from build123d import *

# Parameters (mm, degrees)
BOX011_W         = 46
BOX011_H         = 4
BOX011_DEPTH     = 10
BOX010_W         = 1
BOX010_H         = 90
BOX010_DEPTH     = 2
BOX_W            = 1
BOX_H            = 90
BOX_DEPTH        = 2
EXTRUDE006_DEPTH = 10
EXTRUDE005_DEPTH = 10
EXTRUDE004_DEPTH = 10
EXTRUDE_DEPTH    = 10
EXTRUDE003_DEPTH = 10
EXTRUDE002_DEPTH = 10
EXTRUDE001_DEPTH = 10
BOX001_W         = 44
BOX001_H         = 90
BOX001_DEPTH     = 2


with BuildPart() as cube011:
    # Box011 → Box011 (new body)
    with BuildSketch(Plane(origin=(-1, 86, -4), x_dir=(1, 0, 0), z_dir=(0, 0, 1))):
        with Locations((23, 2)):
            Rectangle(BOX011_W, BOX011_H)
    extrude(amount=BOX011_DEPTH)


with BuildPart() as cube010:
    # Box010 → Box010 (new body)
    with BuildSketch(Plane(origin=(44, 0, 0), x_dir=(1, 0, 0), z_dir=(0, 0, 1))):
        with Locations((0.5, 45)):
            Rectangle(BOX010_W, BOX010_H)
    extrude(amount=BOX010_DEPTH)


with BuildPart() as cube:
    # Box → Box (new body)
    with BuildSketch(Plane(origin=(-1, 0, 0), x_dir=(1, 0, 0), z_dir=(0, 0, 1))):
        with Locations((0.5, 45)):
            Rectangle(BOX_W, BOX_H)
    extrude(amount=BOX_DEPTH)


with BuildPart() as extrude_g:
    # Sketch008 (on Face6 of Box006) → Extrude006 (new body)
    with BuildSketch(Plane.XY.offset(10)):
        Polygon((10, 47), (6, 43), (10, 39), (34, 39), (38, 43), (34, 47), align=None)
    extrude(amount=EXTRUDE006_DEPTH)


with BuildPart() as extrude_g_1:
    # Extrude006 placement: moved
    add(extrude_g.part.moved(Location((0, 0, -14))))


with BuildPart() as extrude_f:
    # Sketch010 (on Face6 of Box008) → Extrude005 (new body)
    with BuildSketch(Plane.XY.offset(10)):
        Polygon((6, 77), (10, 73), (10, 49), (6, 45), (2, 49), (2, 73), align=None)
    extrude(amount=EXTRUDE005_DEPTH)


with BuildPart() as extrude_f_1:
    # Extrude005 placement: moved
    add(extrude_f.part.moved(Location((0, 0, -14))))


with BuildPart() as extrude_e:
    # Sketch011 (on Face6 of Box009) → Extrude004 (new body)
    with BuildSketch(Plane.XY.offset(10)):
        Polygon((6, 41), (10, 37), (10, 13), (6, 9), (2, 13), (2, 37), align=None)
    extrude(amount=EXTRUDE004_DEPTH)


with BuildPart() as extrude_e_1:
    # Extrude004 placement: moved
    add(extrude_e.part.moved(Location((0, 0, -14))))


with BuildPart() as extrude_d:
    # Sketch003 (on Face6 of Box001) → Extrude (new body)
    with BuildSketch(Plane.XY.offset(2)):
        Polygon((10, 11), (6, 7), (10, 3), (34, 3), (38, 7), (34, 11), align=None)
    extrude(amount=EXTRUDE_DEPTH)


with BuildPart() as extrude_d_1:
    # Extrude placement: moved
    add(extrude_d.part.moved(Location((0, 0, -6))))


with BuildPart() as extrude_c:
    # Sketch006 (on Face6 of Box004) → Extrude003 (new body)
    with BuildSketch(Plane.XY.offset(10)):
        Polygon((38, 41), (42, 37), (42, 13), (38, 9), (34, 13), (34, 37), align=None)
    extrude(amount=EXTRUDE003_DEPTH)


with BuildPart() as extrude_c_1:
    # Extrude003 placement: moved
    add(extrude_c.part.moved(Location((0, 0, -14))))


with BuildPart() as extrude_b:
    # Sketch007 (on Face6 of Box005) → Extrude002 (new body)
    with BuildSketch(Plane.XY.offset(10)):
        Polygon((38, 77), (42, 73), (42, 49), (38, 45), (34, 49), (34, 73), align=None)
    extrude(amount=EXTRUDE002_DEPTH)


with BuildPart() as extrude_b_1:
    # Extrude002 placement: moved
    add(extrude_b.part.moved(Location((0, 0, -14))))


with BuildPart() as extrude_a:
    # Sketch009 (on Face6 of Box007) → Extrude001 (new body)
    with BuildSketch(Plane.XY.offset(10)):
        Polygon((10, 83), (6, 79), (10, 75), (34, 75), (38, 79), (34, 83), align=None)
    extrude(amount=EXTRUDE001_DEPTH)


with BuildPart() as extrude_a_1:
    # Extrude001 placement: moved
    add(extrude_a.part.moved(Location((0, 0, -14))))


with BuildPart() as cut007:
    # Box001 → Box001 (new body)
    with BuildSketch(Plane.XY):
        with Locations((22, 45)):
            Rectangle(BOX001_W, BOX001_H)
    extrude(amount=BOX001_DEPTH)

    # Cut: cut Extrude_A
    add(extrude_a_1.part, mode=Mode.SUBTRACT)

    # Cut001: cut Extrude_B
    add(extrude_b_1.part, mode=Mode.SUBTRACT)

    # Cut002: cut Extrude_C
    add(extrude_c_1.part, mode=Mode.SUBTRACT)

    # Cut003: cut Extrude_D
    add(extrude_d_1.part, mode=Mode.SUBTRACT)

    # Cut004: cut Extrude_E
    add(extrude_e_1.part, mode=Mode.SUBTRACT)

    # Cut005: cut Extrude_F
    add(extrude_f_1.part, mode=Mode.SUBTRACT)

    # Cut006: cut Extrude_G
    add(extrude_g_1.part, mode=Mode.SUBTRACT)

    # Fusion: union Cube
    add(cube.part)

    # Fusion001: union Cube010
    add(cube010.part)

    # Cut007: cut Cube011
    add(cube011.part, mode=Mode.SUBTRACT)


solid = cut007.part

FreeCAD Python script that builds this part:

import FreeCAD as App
import Part
import Sketcher
from FreeCAD import Vector
Q = App.Units.Quantity


def add_polygon(sketch, points):
    """Adds a closed chain of lines whose ends are joined by coincident constraints."""
    first, n = sketch.GeometryCount, len(points)
    for a, b in zip(points, points[1:] + points[:1]):
        sketch.addGeometry(Part.LineSegment(App.Vector(*a, 0), App.Vector(*b, 0)), False)
    for i in range(n):
        sketch.addConstraint(Sketcher.Constraint("Coincident", first + i, 2, first + (i + 1) % n, 1))

doc = App.newDocument("Part")
body = doc.addObject("PartDesign::Body", "Body")

# Sketch on XY plane
sketch1 = body.newObject("Sketcher::SketchObject", "Sketch")
sketch1.AttachmentSupport = (doc.getObject("XY_Plane"), [""])
sketch1.MapMode = "FlatFace"
sketch1.AttachmentOffset = App.Placement(Vector(0, 0, -4), App.Rotation())
add_polygon(sketch1, [(-1, 90), (-1, 86), (45, 86), (45, 90)])  # lines 0-3
sketch1.addConstraint([
    Sketcher.Constraint("Vertical", 0),
    Sketcher.Constraint("Horizontal", 1),
    Sketcher.Constraint("Vertical", 2),
    Sketcher.Constraint("Horizontal", 3),
    Sketcher.Constraint("DistanceX", 1, 1, 1, 2, Q("46 mm")),
    Sketcher.Constraint("DistanceY", 0, 2, 0, 1, Q("4 mm")),
    Sketcher.Constraint("DistanceX", 0, 2, -1, 1, Q("1 mm")),
    Sketcher.Constraint("DistanceY", -1, 1, 0, 2, Q("86 mm")),
])
pad1 = body.newObject("PartDesign::Pad", "Pad")
pad1.Profile = sketch1
pad1.Length = 10
body2 = doc.addObject("PartDesign::Body", "Body001")

# Sketch on XY plane
sketch2 = body2.newObject("Sketcher::SketchObject", "Sketch001")
sketch2.AttachmentSupport = (doc.getObject("XY_Plane001"), [""])
sketch2.MapMode = "FlatFace"
add_polygon(sketch2, [(44, 90), (44, 0), (45, 0), (45, 90)])  # lines 0-3
sketch2.addConstraint([
    Sketcher.Constraint("Vertical", 0),
    Sketcher.Constraint("Horizontal", 1),
    Sketcher.Constraint("Vertical", 2),
    Sketcher.Constraint("Horizontal", 3),
    Sketcher.Constraint("PointOnObject", 0, 2, -1),
    Sketcher.Constraint("DistanceX", 1, 1, 1, 2, Q("1 mm")),
    Sketcher.Constraint("DistanceY", 0, 2, 0, 1, Q("90 mm")),
    Sketcher.Constraint("DistanceX", -1, 1, 0, 2, Q("44 mm")),
])
pad2 = body2.newObject("PartDesign::Pad", "Pad001")
pad2.Profile = sketch2
pad2.Length = 2
body3 = doc.addObject("PartDesign::Body", "Body002")

# Sketch on XY plane
sketch3 = body3.newObject("Sketcher::SketchObject", "Sketch002")
sketch3.AttachmentSupport = (doc.getObject("XY_Plane002"), [""])
sketch3.MapMode = "FlatFace"
add_polygon(sketch3, [(-1, 90), (-1, 0), (0, 0), (0, 90)])  # lines 0-3
sketch3.addConstraint([
    Sketcher.Constraint("Vertical", 0),
    Sketcher.Constraint("Horizontal", 1),
    Sketcher.Constraint("Vertical", 2),
    Sketcher.Constraint("Horizontal", 3),
    Sketcher.Constraint("Coincident", 1, 2, -1, 1),
    Sketcher.Constraint("DistanceX", 1, 1, 1, 2, Q("1 mm")),
    Sketcher.Constraint("DistanceY", 0, 2, 0, 1, Q("90 mm")),
])
pad3 = body3.newObject("PartDesign::Pad", "Pad002")
pad3.Profile = sketch3
pad3.Length = 2
body4 = doc.addObject("PartDesign::Body", "Body003")

# Sketch on XY plane
sketch4 = body4.newObject("Sketcher::SketchObject", "Sketch003")
sketch4.AttachmentSupport = (doc.getObject("XY_Plane003"), [""])
sketch4.MapMode = "FlatFace"
sketch4.AttachmentOffset = App.Placement(Vector(0, 0, 10), App.Rotation())
add_polygon(sketch4, [(10, 47), (6, 43), (10, 39), (34, 39), (38, 43), (34, 47)])  # lines 0-5
sketch4.addConstraint([
    Sketcher.Constraint("Horizontal", 2),
    Sketcher.Constraint("Horizontal", 5),
    Sketcher.Constraint("Perpendicular", 0, 1),
    Sketcher.Constraint("Perpendicular", 1, 3),
    Sketcher.Constraint("Perpendicular", 3, 4),
    Sketcher.Constraint("Horizontal", 0, 2, 3, 2),
    Sketcher.Constraint("Vertical", 2, 2, 4, 2),
    Sketcher.Constraint("Vertical", 1, 2, 5, 2),
    Sketcher.Constraint("DistanceX", 2, 1, 2, 2, Q("24 mm")),
    Sketcher.Constraint("DistanceX", -1, 1, 0, 2, Q("6 mm")),
    Sketcher.Constraint("DistanceY", -1, 1, 0, 2, Q("43 mm")),
    Sketcher.Constraint("DistanceX", -1, 1, 1, 2, Q("10 mm")),
])
pad4 = body4.newObject("PartDesign::Pad", "Pad003")
pad4.Profile = sketch4
pad4.Length = 10
body5 = doc.addObject("PartDesign::Body", "Body004")
doc.recompute()

body4.Placement = App.Placement(Vector(0, 0, -14), App.Rotation(Vector(0, 0, 1), 0))
boolean = body5.newObject("PartDesign::Boolean", "Boolean")
boolean.Type = "Fuse"
boolean.addObjects([body4])
body6 = doc.addObject("PartDesign::Body", "Body005")

# Sketch on XY plane
sketch5 = body6.newObject("Sketcher::SketchObject", "Sketch004")
sketch5.AttachmentSupport = (doc.getObject("XY_Plane005"), [""])
sketch5.MapMode = "FlatFace"
sketch5.AttachmentOffset = App.Placement(Vector(0, 0, 10), App.Rotation())
add_polygon(sketch5, [(10, 73), (6, 77), (2, 73), (2, 49), (6, 45), (10, 49)])  # lines 0-5
sketch5.addConstraint([
    Sketcher.Constraint("Vertical", 2),
    Sketcher.Constraint("Vertical", 5),
    Sketcher.Constraint("Perpendicular", 0, 1),
    Sketcher.Constraint("Perpendicular", 1, 3),
    Sketcher.Constraint("Perpendicular", 3, 4),
    Sketcher.Constraint("Horizontal", 2, 2, 4, 2),
    Sketcher.Constraint("Horizontal", 1, 2, 5, 2),
    Sketcher.Constraint("Vertical", 0, 2, 3, 2),
    Sketcher.Constraint("DistanceY", 2, 2, 2, 1, Q("24 mm")),
    Sketcher.Constraint("DistanceX", -1, 1, 0, 2, Q("6 mm")),
    Sketcher.Constraint("DistanceY", -1, 1, 0, 2, Q("77 mm")),
    Sketcher.Constraint("DistanceX", -1, 1, 1, 2, Q("2 mm")),
])
pad5 = body6.newObject("PartDesign::Pad", "Pad004")
pad5.Profile = sketch5
pad5.Length = 10
body7 = doc.addObject("PartDesign::Body", "Body006")
doc.recompute()

body6.Placement = App.Placement(Vector(0, 0, -14), App.Rotation(Vector(0, 0, 1), 0))
boolean2 = body7.newObject("PartDesign::Boolean", "Boolean001")
boolean2.Type = "Fuse"
boolean2.addObjects([body6])
body8 = doc.addObject("PartDesign::Body", "Body007")

# Sketch on XY plane
sketch6 = body8.newObject("Sketcher::SketchObject", "Sketch005")
sketch6.AttachmentSupport = (doc.getObject("XY_Plane007"), [""])
sketch6.MapMode = "FlatFace"
sketch6.AttachmentOffset = App.Placement(Vector(0, 0, 10), App.Rotation())
add_polygon(sketch6, [(10, 37), (6, 41), (2, 37), (2, 13), (6, 9), (10, 13)])  # lines 0-5
sketch6.addConstraint([
    Sketcher.Constraint("Vertical", 2),
    Sketcher.Constraint("Vertical", 5),
    Sketcher.Constraint("Perpendicular", 0, 1),
    Sketcher.Constraint("Perpendicular", 1, 3),
    Sketcher.Constraint("Perpendicular", 3, 4),
    Sketcher.Constraint("Horizontal", 2, 2, 4, 2),
    Sketcher.Constraint("Horizontal", 1, 2, 5, 2),
    Sketcher.Constraint("Vertical", 0, 2, 3, 2),
    Sketcher.Constraint("DistanceY", 2, 2, 2, 1, Q("24 mm")),
    Sketcher.Constraint("DistanceX", -1, 1, 0, 2, Q("6 mm")),
    Sketcher.Constraint("DistanceY", -1, 1, 0, 2, Q("41 mm")),
    Sketcher.Constraint("DistanceX", -1, 1, 1, 2, Q("2 mm")),
])
pad6 = body8.newObject("PartDesign::Pad", "Pad005")
pad6.Profile = sketch6
pad6.Length = 10
body9 = doc.addObject("PartDesign::Body", "Body008")
doc.recompute()

body8.Placement = App.Placement(Vector(0, 0, -14), App.Rotation(Vector(0, 0, 1), 0))
boolean3 = body9.newObject("PartDesign::Boolean", "Boolean002")
boolean3.Type = "Fuse"
boolean3.addObjects([body8])
body10 = doc.addObject("PartDesign::Body", "Body009")

# Sketch on XY plane
sketch7 = body10.newObject("Sketcher::SketchObject", "Sketch006")
sketch7.AttachmentSupport = (doc.getObject("XY_Plane009"), [""])
sketch7.MapMode = "FlatFace"
sketch7.AttachmentOffset = App.Placement(Vector(0, 0, 2), App.Rotation())
add_polygon(sketch7, [(10, 11), (6, 7), (10, 3), (34, 3), (38, 7), (34, 11)])  # lines 0-5
sketch7.addConstraint([
    Sketcher.Constraint("Horizontal", 2),
    Sketcher.Constraint("Horizontal", 5),
    Sketcher.Constraint("Perpendicular", 0, 1),
    Sketcher.Constraint("Perpendicular", 1, 3),
    Sketcher.Constraint("Perpendicular", 3, 4),
    Sketcher.Constraint("Horizontal", 0, 2, 3, 2),
    Sketcher.Constraint("Vertical", 2, 2, 4, 2),
    Sketcher.Constraint("Vertical", 1, 2, 5, 2),
    Sketcher.Constraint("DistanceX", 2, 1, 2, 2, Q("24 mm")),
    Sketcher.Constraint("DistanceX", -1, 1, 0, 2, Q("6 mm")),
    Sketcher.Constraint("DistanceY", -1, 1, 0, 2, Q("7 mm")),
    Sketcher.Constraint("DistanceX", -1, 1, 1, 2, Q("10 mm")),
])
pad7 = body10.newObject("PartDesign::Pad", "Pad006")
pad7.Profile = sketch7
pad7.Length = 10
body11 = doc.addObject("PartDesign::Body", "Body010")
doc.recompute()

body10.Placement = App.Placement(Vector(0, 0, -6), App.Rotation(Vector(0, 0, 1), 0))
boolean4 = body11.newObject("PartDesign::Boolean", "Boolean003")
boolean4.Type = "Fuse"
boolean4.addObjects([body10])
body12 = doc.addObject("PartDesign::Body", "Body011")

# Sketch on XY plane
sketch8 = body12.newObject("Sketcher::SketchObject", "Sketch007")
sketch8.AttachmentSupport = (doc.getObject("XY_Plane011"), [""])
sketch8.MapMode = "FlatFace"
sketch8.AttachmentOffset = App.Placement(Vector(0, 0, 10), App.Rotation())
add_polygon(sketch8, [(42, 37), (38, 41), (34, 37), (34, 13), (38, 9), (42, 13)])  # lines 0-5
sketch8.addConstraint([
    Sketcher.Constraint("Vertical", 2),
    Sketcher.Constraint("Vertical", 5),
    Sketcher.Constraint("Perpendicular", 0, 1),
    Sketcher.Constraint("Perpendicular", 1, 3),
    Sketcher.Constraint("Perpendicular", 3, 4),
    Sketcher.Constraint("Horizontal", 2, 2, 4, 2),
    Sketcher.Constraint("Horizontal", 1, 2, 5, 2),
    Sketcher.Constraint("Vertical", 0, 2, 3, 2),
    Sketcher.Constraint("DistanceY", 2, 2, 2, 1, Q("24 mm")),
    Sketcher.Constraint("DistanceX", -1, 1, 0, 2, Q("38 mm")),
    Sketcher.Constraint("DistanceY", -1, 1, 0, 2, Q("41 mm")),
    Sketcher.Constraint("DistanceX", -1, 1, 1, 2, Q("34 mm")),
])
pad8 = body12.newObject("PartDesign::Pad", "Pad007")
pad8.Profile = sketch8
pad8.Length = 10
body13 = doc.addObject("PartDesign::Body", "Body012")
doc.recompute()

body12.Placement = App.Placement(Vector(0, 0, -14), App.Rotation(Vector(0, 0, 1), 0))
boolean5 = body13.newObject("PartDesign::Boolean", "Boolean004")
boolean5.Type = "Fuse"
boolean5.addObjects([body12])
body14 = doc.addObject("PartDesign::Body", "Body013")

# Sketch on XY plane
sketch9 = body14.newObject("Sketcher::SketchObject", "Sketch008")
sketch9.AttachmentSupport = (doc.getObject("XY_Plane013"), [""])
sketch9.MapMode = "FlatFace"
sketch9.AttachmentOffset = App.Placement(Vector(0, 0, 10), App.Rotation())
add_polygon(sketch9, [(42, 73), (38, 77), (34, 73), (34, 49), (38, 45), (42, 49)])  # lines 0-5
sketch9.addConstraint([
    Sketcher.Constraint("Vertical", 2),
    Sketcher.Constraint("Vertical", 5),
    Sketcher.Constraint("Perpendicular", 0, 1),
    Sketcher.Constraint("Perpendicular", 1, 3),
    Sketcher.Constraint("Perpendicular", 3, 4),
    Sketcher.Constraint("Horizontal", 2, 2, 4, 2),
    Sketcher.Constraint("Horizontal", 1, 2, 5, 2),
    Sketcher.Constraint("Vertical", 0, 2, 3, 2),
    Sketcher.Constraint("DistanceY", 2, 2, 2, 1, Q("24 mm")),
    Sketcher.Constraint("DistanceX", -1, 1, 0, 2, Q("38 mm")),
    Sketcher.Constraint("DistanceY", -1, 1, 0, 2, Q("77 mm")),
    Sketcher.Constraint("DistanceX", -1, 1, 1, 2, Q("34 mm")),
])
pad9 = body14.newObject("PartDesign::Pad", "Pad008")
pad9.Profile = sketch9
pad9.Length = 10
body15 = doc.addObject("PartDesign::Body", "Body014")
doc.recompute()

body14.Placement = App.Placement(Vector(0, 0, -14), App.Rotation(Vector(0, 0, 1), 0))
boolean6 = body15.newObject("PartDesign::Boolean", "Boolean005")
boolean6.Type = "Fuse"
boolean6.addObjects([body14])
body16 = doc.addObject("PartDesign::Body", "Body015")

# Sketch on XY plane
sketch10 = body16.newObject("Sketcher::SketchObject", "Sketch009")
sketch10.AttachmentSupport = (doc.getObject("XY_Plane015"), [""])
sketch10.MapMode = "FlatFace"
sketch10.AttachmentOffset = App.Placement(Vector(0, 0, 10), App.Rotation())
add_polygon(sketch10, [(10, 83), (6, 79), (10, 75), (34, 75), (38, 79), (34, 83)])  # lines 0-5
sketch10.addConstraint([
    Sketcher.Constraint("Horizontal", 2),
    Sketcher.Constraint("Horizontal", 5),
    Sketcher.Constraint("Perpendicular", 0, 1),
    Sketcher.Constraint("Perpendicular", 1, 3),
    Sketcher.Constraint("Perpendicular", 3, 4),
    Sketcher.Constraint("Horizontal", 0, 2, 3, 2),
    Sketcher.Constraint("Vertical", 2, 2, 4, 2),
    Sketcher.Constraint("Vertical", 1, 2, 5, 2),
    Sketcher.Constraint("DistanceX", 2, 1, 2, 2, Q("24 mm")),
    Sketcher.Constraint("DistanceX", -1, 1, 0, 2, Q("6 mm")),
    Sketcher.Constraint("DistanceY", -1, 1, 0, 2, Q("79 mm")),
    Sketcher.Constraint("DistanceX", -1, 1, 1, 2, Q("10 mm")),
])
pad10 = body16.newObject("PartDesign::Pad", "Pad009")
pad10.Profile = sketch10
pad10.Length = 10
body17 = doc.addObject("PartDesign::Body", "Body016")
doc.recompute()

body16.Placement = App.Placement(Vector(0, 0, -14), App.Rotation(Vector(0, 0, 1), 0))
boolean7 = body17.newObject("PartDesign::Boolean", "Boolean006")
boolean7.Type = "Fuse"
boolean7.addObjects([body16])
body18 = doc.addObject("PartDesign::Body", "Body017")

# Sketch on XY plane
sketch11 = body18.newObject("Sketcher::SketchObject", "Sketch010")
sketch11.AttachmentSupport = (doc.getObject("XY_Plane017"), [""])
sketch11.MapMode = "FlatFace"
add_polygon(sketch11, [(0, 90), (0, 0), (44, 0), (44, 90)])  # lines 0-3
sketch11.addConstraint([
    Sketcher.Constraint("Vertical", 0),
    Sketcher.Constraint("Horizontal", 1),
    Sketcher.Constraint("Vertical", 2),
    Sketcher.Constraint("Horizontal", 3),
    Sketcher.Constraint("Coincident", 0, 2, -1, 1),
    Sketcher.Constraint("DistanceX", 1, 1, 1, 2, Q("44 mm")),
    Sketcher.Constraint("DistanceY", 0, 2, 0, 1, Q("90 mm")),
])
pad11 = body18.newObject("PartDesign::Pad", "Pad010")
pad11.Profile = sketch11
pad11.Length = 2
doc.recompute()

boolean8 = body18.newObject("PartDesign::Boolean", "Boolean007")
boolean8.Type = "Cut"
boolean8.addObjects([body17])
doc.recompute()

boolean9 = body18.newObject("PartDesign::Boolean", "Boolean008")
boolean9.Type = "Cut"
boolean9.addObjects([body15])
doc.recompute()

boolean10 = body18.newObject("PartDesign::Boolean", "Boolean009")
boolean10.Type = "Cut"
boolean10.addObjects([body13])
doc.recompute()

boolean11 = body18.newObject("PartDesign::Boolean", "Boolean010")
boolean11.Type = "Cut"
boolean11.addObjects([body11])
doc.recompute()

boolean12 = body18.newObject("PartDesign::Boolean", "Boolean011")
boolean12.Type = "Cut"
boolean12.addObjects([body9])
doc.recompute()

boolean13 = body18.newObject("PartDesign::Boolean", "Boolean012")
boolean13.Type = "Cut"
boolean13.addObjects([body7])
doc.recompute()

boolean14 = body18.newObject("PartDesign::Boolean", "Boolean013")
boolean14.Type = "Cut"
boolean14.addObjects([body5])
doc.recompute()

boolean15 = body18.newObject("PartDesign::Boolean", "Boolean014")
boolean15.Type = "Fuse"
boolean15.addObjects([body3])
doc.recompute()

boolean16 = body18.newObject("PartDesign::Boolean", "Boolean015")
boolean16.Type = "Fuse"
boolean16.addObjects([body2])
doc.recompute()

boolean17 = body18.newObject("PartDesign::Boolean", "Boolean016")
boolean17.Type = "Cut"
boolean17.addObjects([body])

doc.recompute()
